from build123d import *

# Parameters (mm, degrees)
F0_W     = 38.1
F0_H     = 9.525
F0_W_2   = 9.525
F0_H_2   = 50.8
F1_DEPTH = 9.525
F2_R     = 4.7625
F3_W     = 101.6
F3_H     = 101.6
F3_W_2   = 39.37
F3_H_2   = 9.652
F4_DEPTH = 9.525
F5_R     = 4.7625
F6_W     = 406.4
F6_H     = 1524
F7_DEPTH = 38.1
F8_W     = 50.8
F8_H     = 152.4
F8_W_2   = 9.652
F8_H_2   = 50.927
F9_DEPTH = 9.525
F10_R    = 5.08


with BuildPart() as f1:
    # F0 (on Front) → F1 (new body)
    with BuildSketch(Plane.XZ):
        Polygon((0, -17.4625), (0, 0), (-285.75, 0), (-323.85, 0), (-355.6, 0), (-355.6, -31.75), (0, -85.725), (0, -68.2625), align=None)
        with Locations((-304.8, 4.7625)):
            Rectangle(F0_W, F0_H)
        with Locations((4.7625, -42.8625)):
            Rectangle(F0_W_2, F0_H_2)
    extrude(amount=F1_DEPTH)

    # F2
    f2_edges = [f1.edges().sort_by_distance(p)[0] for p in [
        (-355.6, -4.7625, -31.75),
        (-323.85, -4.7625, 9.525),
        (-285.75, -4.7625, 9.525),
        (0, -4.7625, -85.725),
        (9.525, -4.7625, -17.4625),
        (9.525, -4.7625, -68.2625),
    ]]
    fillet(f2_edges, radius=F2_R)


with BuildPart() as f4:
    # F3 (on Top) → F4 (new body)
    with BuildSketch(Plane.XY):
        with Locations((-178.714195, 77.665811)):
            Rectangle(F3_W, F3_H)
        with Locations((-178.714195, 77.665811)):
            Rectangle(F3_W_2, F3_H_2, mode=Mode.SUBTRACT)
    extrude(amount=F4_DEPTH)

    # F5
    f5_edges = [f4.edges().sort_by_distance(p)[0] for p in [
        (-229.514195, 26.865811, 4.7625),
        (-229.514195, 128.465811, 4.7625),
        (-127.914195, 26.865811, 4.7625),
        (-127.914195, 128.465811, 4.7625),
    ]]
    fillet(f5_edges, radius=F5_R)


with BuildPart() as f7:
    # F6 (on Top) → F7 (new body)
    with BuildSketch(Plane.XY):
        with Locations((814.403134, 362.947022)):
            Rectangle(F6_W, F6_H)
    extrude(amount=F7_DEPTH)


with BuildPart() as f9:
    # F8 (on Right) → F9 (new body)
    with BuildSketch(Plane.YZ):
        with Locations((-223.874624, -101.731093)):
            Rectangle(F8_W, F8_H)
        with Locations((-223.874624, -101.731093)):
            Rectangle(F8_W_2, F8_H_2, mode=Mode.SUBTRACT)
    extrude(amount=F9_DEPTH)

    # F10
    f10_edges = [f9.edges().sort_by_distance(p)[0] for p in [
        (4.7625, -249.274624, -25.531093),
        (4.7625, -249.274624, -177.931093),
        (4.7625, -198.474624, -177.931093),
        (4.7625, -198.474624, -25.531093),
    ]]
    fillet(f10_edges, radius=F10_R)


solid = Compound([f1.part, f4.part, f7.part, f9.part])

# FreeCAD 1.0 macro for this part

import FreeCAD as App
import Part
import Sketcher
from FreeCAD import Vector
Q = App.Units.Quantity


def edges_at(feature, points):
    """Names of the edges that pass closest to the given points."""
    edges = feature.Shape.Edges
    near = lambda p: min(range(len(edges)), key=lambda i: edges[i].distToShape(Part.Vertex(*p))[0])
    return sorted({f"Edge{near(p) + 1}" for p in points})


def add_polygon(sketch, points):
    """Adds a closed chain of lines whose ends are joined by coincident constraints."""
    first, n = sketch.GeometryCount, len(points)
    for a, b in zip(points, points[1:] + points[:1]):
        sketch.addGeometry(Part.LineSegment(App.Vector(*a, 0), App.Vector(*b, 0)), False)
    for i in range(n):
        sketch.addConstraint(Sketcher.Constraint("Coincident", first + i, 2, first + (i + 1) % n, 1))

doc = App.newDocument("Part")
body = doc.addObject("PartDesign::Body", "Body")

# Sketch on XZ plane
sketch1 = body.newObject("Sketcher::SketchObject", "Sketch")
sketch1.AttachmentSupport = (doc.getObject("XZ_Plane"), [""])
sketch1.MapMode = "FlatFace"
add_polygon(sketch1, [(0, 0), (-286, 0), (-286, 10), (-324, 10), (-324, 0), (-356, 0), (-356, -32), (0, -86), (0, -68), (10, -68), (10, -17), (0, -17)])  # lines 0-11
sketch1.addConstraint([
    Sketcher.Constraint("Horizontal", 0),
    Sketcher.Constraint("Vertical", 1),
    Sketcher.Constraint("Horizontal", 2),
    Sketcher.Constraint("Vertical", 3),
    Sketcher.Constraint("Horizontal", 4),
    Sketcher.Constraint("Vertical", 5),
    Sketcher.Constraint("Vertical", 7),
    Sketcher.Constraint("Horizontal", 8),
    Sketcher.Constraint("Vertical", 9),
    Sketcher.Constraint("Horizontal", 10),
    Sketcher.Constraint("Vertical", 11),
    Sketcher.Constraint("Coincident", 11, 2, -1, 1),
    Sketcher.Constraint("PointOnObject", 3, 2, -1),
    Sketcher.Constraint("PointOnObject", 6, 2, -2),
    Sketcher.Constraint("Equal", 10, 1),
    Sketcher.Constraint("Equal", 4, 5),
    Sketcher.Constraint("Equal", 7, 11),
    Sketcher.Constraint("DistanceY", 9, 1, 9, 2, Q("2 in")),
    Sketcher.Constraint("DistanceX", 2, 2, 2, 1, Q("1.5 in")),
    Sketcher.Constraint("DistanceX", 4, 2, -1, 1, Q("14 in")),
    Sketcher.Constraint("DistanceX", 0, 2, 0, 1, Q("11.25 in")),
    Sketcher.Constraint("DistanceX", 8, 1, 8, 2, Q("0.375 in")),
    Sketcher.Constraint("DistanceY", 7, 1, 7, 2, Q("0.6875 in")),
])
pad1 = body.newObject("PartDesign::Pad", "Pad")
pad1.Profile = sketch1
pad1.Length = Q("0.375 in")
doc.recompute()

fillet = body.newObject("PartDesign::Fillet", "Fillet")
fillet.Base = (pad1, edges_at(pad1, [
    (-355.6, -4.763, -31.75),
    (-323.85, -4.763, 9.525),
    (-285.75, -4.763, 9.525),
    (0, -4.763, -85.725),
    (9.525, -4.763, -17.462),
    (9.525, -4.763, -68.263),
]))
fillet.Radius = Q("0.1875 in")
body2 = doc.addObject("PartDesign::Body", "Body001")

# Sketch on XY plane
sketch2 = body2.newObject("Sketcher::SketchObject", "Sketch001")
sketch2.AttachmentSupport = (doc.getObject("XY_Plane001"), [""])
sketch2.MapMode = "FlatFace"
add_polygon(sketch2, [(-230, 128), (-230, 27), (-128, 27), (-128, 128)])  # lines 0-3
add_polygon(sketch2, [(-159, 73), (-198, 73), (-198, 82), (-159, 82)])  # lines 4-7
sketch2.addConstraint([
    Sketcher.Constraint("Vertical", 0),
    Sketcher.Constraint("Horizontal", 1),
    Sketcher.Constraint("Vertical", 2),
    Sketcher.Constraint("Horizontal", 3),
    Sketcher.Constraint("Horizontal", 4),
    Sketcher.Constraint("Vertical", 5),
    Sketcher.Constraint("Horizontal", 6),
    Sketcher.Constraint("Vertical", 7),
    Sketcher.Constraint("Equal", 3, 0),
    Sketcher.Constraint("DistanceX", 1, 1, 1, 2, Q("4 in")),
    Sketcher.Constraint("DistanceX", 4, 2, 4, 1, Q("1.55 in")),
    Sketcher.Constraint("DistanceY", 5, 1, 5, 2, Q("0.38 in")),
    Sketcher.Constraint("DistanceY", 0, 2, 4, 2, Q("1.81 in")),
    Sketcher.Constraint("DistanceX", 0, 2, 4, 2, Q("1.225 in")),
    Sketcher.Constraint("DistanceY", -1, 1, 0, 2, Q("26.865811 mm")),
    Sketcher.Constraint("DistanceX", 0, 2, -1, 1, Q("229.514195 mm")),
])
pad2 = body2.newObject("PartDesign::Pad", "Pad001")
pad2.Profile = sketch2
pad2.Length = Q("0.375 in")
doc.recompute()

fillet2 = body2.newObject("PartDesign::Fillet", "Fillet001")
fillet2.Base = (pad2, edges_at(pad2, [
    (-229.514, 26.866, 4.763),
    (-229.514, 128.466, 4.763),
    (-127.914, 26.866, 4.763),
    (-127.914, 128.466, 4.763),
]))
fillet2.Radius = Q("0.1875 in")
body3 = doc.addObject("PartDesign::Body", "Body002")

# Sketch on XY plane
sketch3 = body3.newObject("Sketcher::SketchObject", "Sketch002")
sketch3.AttachmentSupport = (doc.getObject("XY_Plane002"), [""])
sketch3.MapMode = "FlatFace"
add_polygon(sketch3, [(611, 1125), (611, -399), (1018, -399), (1018, 1125)])  # lines 0-3
sketch3.addConstraint([
    Sketcher.Constraint("Vertical", 0),
    Sketcher.Constraint("Horizontal", 1),
    Sketcher.Constraint("Vertical", 2),
    Sketcher.Constraint("Horizontal", 3),
    Sketcher.Constraint("DistanceX", 1, 1, 1, 2, Q("16 in")),
    Sketcher.Constraint("DistanceY", 0, 2, 0, 1, Q("60 in")),
    Sketcher.Constraint("DistanceY", 0, 2, -1, 1, Q("399.052978 mm")),
    Sketcher.Constraint("DistanceX", -1, 1, 0, 2, Q("611.203134 mm")),
])
pad3 = body3.newObject("PartDesign::Pad", "Pad002")
pad3.Profile = sketch3
pad3.Length = Q("1.5 in")
body4 = doc.addObject("PartDesign::Body", "Body003")

# Sketch on YZ plane
sketch4 = body4.newObject("Sketcher::SketchObject", "Sketch003")
sketch4.AttachmentSupport = (doc.getObject("YZ_Plane003"), [""])
sketch4.MapMode = "FlatFace"
add_polygon(sketch4, [(-249, -26), (-249, -178), (-198, -178), (-198, -26)])  # lines 0-3
add_polygon(sketch4, [(-219, -127), (-229, -127), (-229, -76), (-219, -76)])  # lines 4-7
sketch4.addConstraint([
    Sketcher.Constraint("Vertical", 0),
    Sketcher.Constraint("Horizontal", 1),
    Sketcher.Constraint("Vertical", 2),
    Sketcher.Constraint("Horizontal", 3),
    Sketcher.Constraint("Horizontal", 4),
    Sketcher.Constraint("Vertical", 5),
    Sketcher.Constraint("Horizontal", 6),
    Sketcher.Constraint("Vertical", 7),
    Sketcher.Constraint("DistanceX", 1, 1, 1, 2, Q("2 in")),
    Sketcher.Constraint("DistanceY", 0, 2, 0, 1, Q("6 in")),
    Sketcher.Constraint("DistanceX", 4, 2, 4, 1, Q("0.38 in")),
    Sketcher.Constraint("DistanceY", 5, 1, 5, 2, Q("2.005 in")),
    Sketcher.Constraint("DistanceX", 0, 2, 4, 2, Q("0.81 in")),
    Sketcher.Constraint("DistanceY", 0, 2, 4, 2, Q("1.9975 in")),
    Sketcher.Constraint("DistanceX", 0, 2, -1, 1, Q("249.274624 mm")),
    Sketcher.Constraint("DistanceY", 0, 2, -1, 1, Q("177.931093 mm")),
])
pad4 = body4.newObject("PartDesign::Pad", "Pad003")
pad4.Profile = sketch4
pad4.Length = Q("0.375 in")
doc.recompute()

fillet3 = body4.newObject("PartDesign::Fillet", "Fillet002")
fillet3.Base = (pad4, edges_at(pad4, [
    (4.763, -249.275, -25.531),
    (4.763, -249.275, -177.931),
    (4.763, -198.475, -177.931),
    (4.763, -198.475, -25.531),
]))
fillet3.Radius = Q("0.2 in")

doc.recompute()
